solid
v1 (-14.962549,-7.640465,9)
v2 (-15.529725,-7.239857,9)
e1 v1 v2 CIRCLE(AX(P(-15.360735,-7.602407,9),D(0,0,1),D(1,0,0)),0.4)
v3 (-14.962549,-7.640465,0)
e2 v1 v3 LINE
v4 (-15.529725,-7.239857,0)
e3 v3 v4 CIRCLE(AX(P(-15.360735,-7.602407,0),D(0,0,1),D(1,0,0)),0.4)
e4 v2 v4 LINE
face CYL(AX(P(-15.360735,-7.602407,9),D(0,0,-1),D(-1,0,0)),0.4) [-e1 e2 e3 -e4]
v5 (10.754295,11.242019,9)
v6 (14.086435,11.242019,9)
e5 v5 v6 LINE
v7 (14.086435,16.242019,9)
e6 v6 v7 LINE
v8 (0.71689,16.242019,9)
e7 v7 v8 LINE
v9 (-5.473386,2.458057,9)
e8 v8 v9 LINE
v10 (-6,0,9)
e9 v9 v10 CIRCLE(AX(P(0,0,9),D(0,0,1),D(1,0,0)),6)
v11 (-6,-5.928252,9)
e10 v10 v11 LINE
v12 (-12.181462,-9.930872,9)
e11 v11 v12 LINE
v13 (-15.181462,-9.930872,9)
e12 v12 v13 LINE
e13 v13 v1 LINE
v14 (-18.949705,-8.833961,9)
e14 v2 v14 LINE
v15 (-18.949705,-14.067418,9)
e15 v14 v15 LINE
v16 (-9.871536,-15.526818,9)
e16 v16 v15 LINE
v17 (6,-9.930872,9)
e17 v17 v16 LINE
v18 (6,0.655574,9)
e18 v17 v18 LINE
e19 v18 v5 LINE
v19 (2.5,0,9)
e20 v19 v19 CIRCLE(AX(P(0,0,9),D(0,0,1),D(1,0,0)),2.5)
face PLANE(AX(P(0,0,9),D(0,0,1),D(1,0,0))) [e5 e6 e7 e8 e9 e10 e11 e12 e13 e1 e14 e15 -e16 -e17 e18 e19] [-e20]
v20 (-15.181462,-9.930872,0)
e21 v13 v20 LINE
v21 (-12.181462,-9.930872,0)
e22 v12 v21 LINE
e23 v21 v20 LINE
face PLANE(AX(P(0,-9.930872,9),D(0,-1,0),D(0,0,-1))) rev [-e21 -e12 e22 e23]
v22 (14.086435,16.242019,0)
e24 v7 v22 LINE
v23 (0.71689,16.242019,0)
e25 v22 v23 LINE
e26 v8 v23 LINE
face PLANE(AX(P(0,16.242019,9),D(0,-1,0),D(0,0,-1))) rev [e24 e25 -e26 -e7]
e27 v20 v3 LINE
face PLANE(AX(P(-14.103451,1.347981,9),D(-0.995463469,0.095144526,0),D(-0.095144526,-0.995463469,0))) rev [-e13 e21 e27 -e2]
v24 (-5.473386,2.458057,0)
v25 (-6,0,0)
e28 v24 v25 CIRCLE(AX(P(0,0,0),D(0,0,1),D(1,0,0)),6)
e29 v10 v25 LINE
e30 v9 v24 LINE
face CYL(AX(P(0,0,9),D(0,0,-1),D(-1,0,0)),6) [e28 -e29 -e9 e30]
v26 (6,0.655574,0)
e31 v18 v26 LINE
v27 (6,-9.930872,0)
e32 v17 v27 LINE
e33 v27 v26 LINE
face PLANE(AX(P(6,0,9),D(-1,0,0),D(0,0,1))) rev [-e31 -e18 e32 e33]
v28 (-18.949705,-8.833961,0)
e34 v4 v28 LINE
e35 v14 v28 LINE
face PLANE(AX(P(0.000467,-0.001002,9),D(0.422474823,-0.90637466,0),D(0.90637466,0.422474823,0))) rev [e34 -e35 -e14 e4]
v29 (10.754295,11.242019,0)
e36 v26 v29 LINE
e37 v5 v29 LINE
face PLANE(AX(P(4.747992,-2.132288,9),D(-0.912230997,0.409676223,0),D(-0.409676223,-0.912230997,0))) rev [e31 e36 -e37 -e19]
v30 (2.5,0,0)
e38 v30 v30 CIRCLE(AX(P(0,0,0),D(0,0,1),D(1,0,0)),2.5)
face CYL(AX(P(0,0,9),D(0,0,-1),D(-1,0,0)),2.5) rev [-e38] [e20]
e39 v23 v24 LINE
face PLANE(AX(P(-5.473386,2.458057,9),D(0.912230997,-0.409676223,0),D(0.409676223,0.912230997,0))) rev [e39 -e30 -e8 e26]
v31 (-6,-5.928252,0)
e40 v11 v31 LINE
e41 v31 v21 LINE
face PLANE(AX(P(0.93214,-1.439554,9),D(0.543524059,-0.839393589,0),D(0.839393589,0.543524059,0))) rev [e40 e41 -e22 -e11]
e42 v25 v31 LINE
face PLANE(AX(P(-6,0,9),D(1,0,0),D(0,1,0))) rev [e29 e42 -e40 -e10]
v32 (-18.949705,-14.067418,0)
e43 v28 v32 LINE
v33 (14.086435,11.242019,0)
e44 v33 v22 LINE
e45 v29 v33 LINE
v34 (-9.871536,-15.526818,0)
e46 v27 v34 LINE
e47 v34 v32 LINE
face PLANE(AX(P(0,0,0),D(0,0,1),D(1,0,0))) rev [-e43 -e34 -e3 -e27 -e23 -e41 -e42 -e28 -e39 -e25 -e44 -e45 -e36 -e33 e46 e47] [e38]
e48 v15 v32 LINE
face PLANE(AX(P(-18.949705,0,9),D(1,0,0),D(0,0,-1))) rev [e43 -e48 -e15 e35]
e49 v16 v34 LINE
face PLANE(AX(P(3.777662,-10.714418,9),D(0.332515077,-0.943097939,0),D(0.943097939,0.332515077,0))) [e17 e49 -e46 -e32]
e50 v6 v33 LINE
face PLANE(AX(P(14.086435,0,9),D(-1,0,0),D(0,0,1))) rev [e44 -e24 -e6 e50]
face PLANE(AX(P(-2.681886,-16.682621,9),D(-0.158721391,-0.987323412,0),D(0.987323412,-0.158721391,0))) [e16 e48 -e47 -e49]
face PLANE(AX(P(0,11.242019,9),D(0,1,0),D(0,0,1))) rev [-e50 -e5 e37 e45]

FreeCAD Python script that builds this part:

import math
import FreeCAD as App
import Part
import Sketcher

doc = App.newDocument("Part")
params = doc.addObject("Spreadsheet::Sheet", "Params")
for row, (alias, value) in enumerate([
    ("sketch1_diameter", "5 mm"),
    ("sketch1_radius", "6 mm"),
    ("sketch1_radius2", "0.4 mm"),
    ("sketch1_width", "3 mm"),
    ("sketch1_height", "5 mm"),
    ("pad1_length", "9 mm"),
], start=1):
    params.set(f"A{row}", alias)
    params.set(f"B{row}", "=" + value)
    params.setAlias(f"B{row}", alias)

body = doc.addObject("PartDesign::Body", "Body")

# Sketch on XY plane
sketch1 = body.newObject("Sketcher::SketchObject", "Sketch")
sketch1.AttachmentSupport = (doc.getObject("XY_Plane"), [""])
sketch1.MapMode = "FlatFace"
sketch1.addGeometry([
    Part.LineSegment(App.Vector(-6, 0, 0), App.Vector(-6, -5.928252, 0)),  # 0
    Part.LineSegment(App.Vector(-6, -5.928252, 0), App.Vector(-12.181462, -9.930872, 0)),  # 1
    Part.LineSegment(App.Vector(-12.181462, -9.930872, 0), App.Vector(-15.181462, -9.930872, 0)),  # 2
    Part.LineSegment(App.Vector(-15.181462, -9.930872, 0), App.Vector(-14.962549, -7.640465, 0)),  # 3
    Part.ArcOfCircle(Part.Circle(App.Vector(-15.360735, -7.602407, 0), App.Vector(0, 0, 1), 0.4), math.radians(-5.459638), math.radians(114.990932)),  # 4
    Part.LineSegment(App.Vector(-15.529725, -7.239857, 0), App.Vector(-18.949705, -8.833961, 0)),  # 5
    Part.LineSegment(App.Vector(-18.949705, -8.833961, 0), App.Vector(-18.949705, -14.067418, 0)),  # 6
    Part.LineSegment(App.Vector(-18.949705, -14.067418, 0), App.Vector(-9.871536, -15.526818, 0)),  # 7
    Part.LineSegment(App.Vector(-9.871536, -15.526818, 0), App.Vector(6, -9.930872, 0)),  # 8
    Part.LineSegment(App.Vector(6, -9.930872, 0), App.Vector(6, 0.655574, 0)),  # 9
    Part.LineSegment(App.Vector(6, 0.655574, 0), App.Vector(10.754295, 11.242019, 0)),  # 10
    Part.LineSegment(App.Vector(10.754295, 11.242019, 0), App.Vector(14.086435, 11.242019, 0)),  # 11
    Part.LineSegment(App.Vector(14.086435, 11.242019, 0), App.Vector(14.086435, 16.242019, 0)),  # 12
    Part.LineSegment(App.Vector(14.086435, 16.242019, 0), App.Vector(0.71689, 16.242019, 0)),  # 13
    Part.LineSegment(App.Vector(0.71689, 16.242019, 0), App.Vector(-5.473386, 2.458057, 0)),  # 14
    Part.ArcOfCircle(Part.Circle(App.Vector(0, 0, 0), App.Vector(0, 0, 1), 6), math.radians(155.815503), math.radians(180)),  # 15
    Part.Circle(App.Vector(0, 0, 0), App.Vector(0, 0, 1), 2.5),  # 16
], False)
sketch1.addConstraint([
    Sketcher.Constraint("Coincident", 0, 2, 1, 1),
    Sketcher.Constraint("Coincident", 1, 2, 2, 1),
    Sketcher.Constraint("Coincident", 2, 2, 3, 1),
    Sketcher.Constraint("Coincident", 3, 2, 4, 1),
    Sketcher.Constraint("Coincident", 4, 2, 5, 1),
    Sketcher.Constraint("Coincident", 5, 2, 6, 1),
    Sketcher.Constraint("Coincident", 6, 2, 7, 1),
    Sketcher.Constraint("Coincident", 7, 2, 8, 1),
    Sketcher.Constraint("Coincident", 8, 2, 9, 1),
    Sketcher.Constraint("Coincident", 9, 2, 10, 1),
    Sketcher.Constraint("Coincident", 10, 2, 11, 1),
    Sketcher.Constraint("Coincident", 11, 2, 12, 1),
    Sketcher.Constraint("Coincident", 12, 2, 13, 1),
    Sketcher.Constraint("Coincident", 13, 2, 14, 1),
    Sketcher.Constraint("Coincident", 14, 2, 15, 1),
    Sketcher.Constraint("Coincident", 15, 2, 0, 1),
    Sketcher.Constraint("Vertical", 0),
    Sketcher.Constraint("Horizontal", 2),
    Sketcher.Constraint("Vertical", 6),
    Sketcher.Constraint("Vertical", 9),
    Sketcher.Constraint("Horizontal", 11),
    Sketcher.Constraint("Vertical", 12),
    Sketcher.Constraint("Horizontal", 13),
    Sketcher.Constraint("Coincident", 15, 3, -1, 1),
    Sketcher.Constraint("Coincident", 16, 3, -1, 1),
    Sketcher.Constraint("PointOnObject", 15, 2, -1),
    Sketcher.Constraint("Diameter", 16, 5.0),
    Sketcher.Constraint("Radius", 15, 6.0),
    Sketcher.Constraint("Radius", 4, 0.4),
    Sketcher.Constraint("DistanceX", 2, 2, 2, 1, 3.0),
    Sketcher.Constraint("DistanceY", 12, 1, 12, 2, 5.0),
    Sketcher.Constraint("DistanceX", -1, 1, 8, 2, 6.0),
    Sketcher.Constraint("Distance", 1, 7.3642),
    Sketcher.Constraint("DistanceX", 11, 1, 11, 2, 3.33214),
    Sketcher.Constraint("DistanceY", 7, 2, 6, 2, 1.4594),
    Sketcher.Constraint("DistanceX", 4, 3, 7, 2, 5.489198),
    Sketcher.Constraint("Distance", 8, 16.82915),
    Sketcher.Constraint("DistanceX", 13, 2, 13, 1, 13.369545),
    Sketcher.Constraint("DistanceY", 0, 2, 0, 1, 5.928252),
    Sketcher.Constraint("DistanceY", 6, 2, 6, 1, 5.233457),
    Sketcher.Constraint("DistanceY", 9, 1, 9, 2, 10.586446),
    Sketcher.Constraint("DistanceX", 3, 2, -1, 1, 14.962549),
    Sketcher.Constraint("DistanceY", 5, 2, -1, 1, 8.833961),
    Sketcher.Constraint("DistanceY", -1, 1, 10, 2, 11.242019),
    Sketcher.Constraint("DistanceX", -1, 1, 13, 2, 0.71689),
    Sketcher.Constraint("DistanceY", 1, 2, 0, 2, 4.00262),
    Sketcher.Constraint("DistanceX", 4, 2, 4, 3, 0.16899),
    Sketcher.Constraint("DistanceX", 5, 2, 4, 2, 3.41998),
    Sketcher.Constraint("DistanceY", 6, 2, 4, 3, 6.465012),
    Sketcher.Constraint("DistanceY", 8, 2, 0, 2, 4.00262),
    Sketcher.Constraint("DistanceY", 0, 2, 14, 2, 8.38631),
])
sketch1.setExpression("Constraints[26]", "Params.sketch1_diameter")
sketch1.setExpression("Constraints[27]", "Params.sketch1_radius")
sketch1.setExpression("Constraints[28]", "Params.sketch1_radius2")
sketch1.setExpression("Constraints[29]", "Params.sketch1_width")
sketch1.setExpression("Constraints[30]", "Params.sketch1_height")
pad1 = body.newObject("PartDesign::Pad", "Pad")
pad1.Profile = sketch1
pad1.setExpression("Length", "Params.pad1_length")

doc.recompute()
